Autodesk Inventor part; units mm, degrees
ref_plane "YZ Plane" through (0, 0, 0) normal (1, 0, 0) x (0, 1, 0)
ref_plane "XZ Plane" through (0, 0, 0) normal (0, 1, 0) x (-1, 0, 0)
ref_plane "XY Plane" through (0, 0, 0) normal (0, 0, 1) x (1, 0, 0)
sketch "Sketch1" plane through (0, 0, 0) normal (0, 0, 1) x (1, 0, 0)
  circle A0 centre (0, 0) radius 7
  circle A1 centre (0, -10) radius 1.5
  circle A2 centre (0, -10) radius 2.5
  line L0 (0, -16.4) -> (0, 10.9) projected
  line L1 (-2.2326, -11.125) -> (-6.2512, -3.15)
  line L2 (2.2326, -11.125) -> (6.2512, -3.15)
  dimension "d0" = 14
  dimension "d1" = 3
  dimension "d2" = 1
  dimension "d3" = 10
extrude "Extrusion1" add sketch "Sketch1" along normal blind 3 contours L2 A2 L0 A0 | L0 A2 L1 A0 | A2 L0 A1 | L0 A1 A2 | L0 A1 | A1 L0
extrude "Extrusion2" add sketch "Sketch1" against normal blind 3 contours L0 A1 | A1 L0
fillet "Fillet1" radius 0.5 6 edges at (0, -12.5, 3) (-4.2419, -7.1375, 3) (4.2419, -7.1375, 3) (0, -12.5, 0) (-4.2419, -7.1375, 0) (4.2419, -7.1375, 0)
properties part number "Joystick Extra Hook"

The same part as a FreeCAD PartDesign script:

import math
import FreeCAD as App
import Part
import Sketcher

V = App.Vector
Q = App.Units.Quantity


def edges_at(feature, points):
    """Names of the edges that pass closest to the given points."""
    edges = feature.Shape.Edges
    near = lambda p: min(range(len(edges)), key=lambda i: edges[i].distToShape(Part.Vertex(*p))[0])
    return sorted({f"Edge{near(p) + 1}" for p in points})

doc = App.newDocument("Part")
params = doc.addObject("Spreadsheet::Sheet", "Params")
for row, (alias, value) in enumerate([
    ("sketch1_radius", "7 mm"),
    ("sketch1_radius2", "2.5 mm"),
    ("pad1_length", "3 mm"),
    ("sketch2_diameter", "3 mm"),
    ("pad2_length", "3 mm"),
    ("fillet_radius", "0.5 mm"),
], start=1):
    params.set(f"A{row}", alias)
    params.set(f"B{row}", "=" + value)
    params.setAlias(f"B{row}", alias)

body = doc.addObject("PartDesign::Body", "Body")

sketch1 = body.newObject("Sketcher::SketchObject", "Sketch")
sketch1.AttachmentSupport = (doc.getObject("XY_Plane"), [""])
sketch1.MapMode = "FlatFace"
sketch1.addGeometry(Part.LineSegment(V(2.2, -11.1, 0), V(6.3, -3.1, 0)), False)
sketch1.addGeometry(Part.ArcOfCircle(Part.Circle(V(0, 0, 0), V(0, 0, 1), 7), math.radians(-153), math.radians(-27)), False)
sketch1.addGeometry(Part.LineSegment(V(-6.3, -3.1, 0), V(-2.2, -11.1, 0)), False)
sketch1.addGeometry(Part.ArcOfCircle(Part.Circle(V(0, -10, 0), V(0, 0, 1), 2.5), math.radians(-153), math.radians(-27)), False)
sketch1.addConstraint(Sketcher.Constraint("Tangent", 0, 2, 1, 2))
sketch1.addConstraint(Sketcher.Constraint("Tangent", 1, 1, 2, 1))
sketch1.addConstraint(Sketcher.Constraint("Tangent", 2, 2, 3, 1))
sketch1.addConstraint(Sketcher.Constraint("Tangent", 3, 2, 0, 1))
sketch1.addConstraint(Sketcher.Constraint("Coincident", 1, 3, -1, 1))
sketch1.addConstraint(Sketcher.Constraint("PointOnObject", 3, 3, -2))
sketch1.addConstraint(Sketcher.Constraint("Radius", 1, Q("7 mm")))
sketch1.addConstraint(Sketcher.Constraint("DistanceY", 3, 3, -1, 1, Q("10 mm")))
sketch1.addConstraint(Sketcher.Constraint("Radius", 3, Q("2.5 mm")))
sketch1.setExpression("Constraints[6]", "Params.sketch1_radius")
sketch1.setExpression("Constraints[8]", "Params.sketch1_radius2")
pad1 = body.newObject("PartDesign::Pad", "Pad")
pad1.Profile = sketch1
pad1.setExpression("Length", "Params.pad1_length")

sketch2 = body.newObject("Sketcher::SketchObject", "Sketch001")
sketch2.AttachmentSupport = (doc.getObject("XY_Plane"), [""])
sketch2.MapMode = "FlatFace"
sketch2.addGeometry(Part.Circle(V(0, -10, 0), V(0, 0, 1), 1.5), False)
sketch2.addConstraint(Sketcher.Constraint("PointOnObject", 0, 3, -2))
sketch2.addConstraint(Sketcher.Constraint("Diameter", 0, Q("3 mm")))
sketch2.addConstraint(Sketcher.Constraint("DistanceY", 0, 3, -1, 1, Q("10 mm")))
sketch2.setExpression("Constraints[1]", "Params.sketch2_diameter")
pad2 = body.newObject("PartDesign::Pad", "Pad001")
pad2.Profile = sketch2
pad2.setExpression("Length", "Params.pad2_length")
pad2.Reversed = True
doc.recompute()

fillet = body.newObject("PartDesign::Fillet", "Fillet")
fillet.Base = (pad2, edges_at(pad2, [
    (0, -12.5, 3),
    (-4.242, -7.138, 3),
    (4.242, -7.138, 3),
    (0, -12.5, 0),
    (-4.242, -7.138, 0),
    (4.242, -7.138, 0),
]))
fillet.setExpression("Radius", "Params.fillet_radius")

doc.recompute()
